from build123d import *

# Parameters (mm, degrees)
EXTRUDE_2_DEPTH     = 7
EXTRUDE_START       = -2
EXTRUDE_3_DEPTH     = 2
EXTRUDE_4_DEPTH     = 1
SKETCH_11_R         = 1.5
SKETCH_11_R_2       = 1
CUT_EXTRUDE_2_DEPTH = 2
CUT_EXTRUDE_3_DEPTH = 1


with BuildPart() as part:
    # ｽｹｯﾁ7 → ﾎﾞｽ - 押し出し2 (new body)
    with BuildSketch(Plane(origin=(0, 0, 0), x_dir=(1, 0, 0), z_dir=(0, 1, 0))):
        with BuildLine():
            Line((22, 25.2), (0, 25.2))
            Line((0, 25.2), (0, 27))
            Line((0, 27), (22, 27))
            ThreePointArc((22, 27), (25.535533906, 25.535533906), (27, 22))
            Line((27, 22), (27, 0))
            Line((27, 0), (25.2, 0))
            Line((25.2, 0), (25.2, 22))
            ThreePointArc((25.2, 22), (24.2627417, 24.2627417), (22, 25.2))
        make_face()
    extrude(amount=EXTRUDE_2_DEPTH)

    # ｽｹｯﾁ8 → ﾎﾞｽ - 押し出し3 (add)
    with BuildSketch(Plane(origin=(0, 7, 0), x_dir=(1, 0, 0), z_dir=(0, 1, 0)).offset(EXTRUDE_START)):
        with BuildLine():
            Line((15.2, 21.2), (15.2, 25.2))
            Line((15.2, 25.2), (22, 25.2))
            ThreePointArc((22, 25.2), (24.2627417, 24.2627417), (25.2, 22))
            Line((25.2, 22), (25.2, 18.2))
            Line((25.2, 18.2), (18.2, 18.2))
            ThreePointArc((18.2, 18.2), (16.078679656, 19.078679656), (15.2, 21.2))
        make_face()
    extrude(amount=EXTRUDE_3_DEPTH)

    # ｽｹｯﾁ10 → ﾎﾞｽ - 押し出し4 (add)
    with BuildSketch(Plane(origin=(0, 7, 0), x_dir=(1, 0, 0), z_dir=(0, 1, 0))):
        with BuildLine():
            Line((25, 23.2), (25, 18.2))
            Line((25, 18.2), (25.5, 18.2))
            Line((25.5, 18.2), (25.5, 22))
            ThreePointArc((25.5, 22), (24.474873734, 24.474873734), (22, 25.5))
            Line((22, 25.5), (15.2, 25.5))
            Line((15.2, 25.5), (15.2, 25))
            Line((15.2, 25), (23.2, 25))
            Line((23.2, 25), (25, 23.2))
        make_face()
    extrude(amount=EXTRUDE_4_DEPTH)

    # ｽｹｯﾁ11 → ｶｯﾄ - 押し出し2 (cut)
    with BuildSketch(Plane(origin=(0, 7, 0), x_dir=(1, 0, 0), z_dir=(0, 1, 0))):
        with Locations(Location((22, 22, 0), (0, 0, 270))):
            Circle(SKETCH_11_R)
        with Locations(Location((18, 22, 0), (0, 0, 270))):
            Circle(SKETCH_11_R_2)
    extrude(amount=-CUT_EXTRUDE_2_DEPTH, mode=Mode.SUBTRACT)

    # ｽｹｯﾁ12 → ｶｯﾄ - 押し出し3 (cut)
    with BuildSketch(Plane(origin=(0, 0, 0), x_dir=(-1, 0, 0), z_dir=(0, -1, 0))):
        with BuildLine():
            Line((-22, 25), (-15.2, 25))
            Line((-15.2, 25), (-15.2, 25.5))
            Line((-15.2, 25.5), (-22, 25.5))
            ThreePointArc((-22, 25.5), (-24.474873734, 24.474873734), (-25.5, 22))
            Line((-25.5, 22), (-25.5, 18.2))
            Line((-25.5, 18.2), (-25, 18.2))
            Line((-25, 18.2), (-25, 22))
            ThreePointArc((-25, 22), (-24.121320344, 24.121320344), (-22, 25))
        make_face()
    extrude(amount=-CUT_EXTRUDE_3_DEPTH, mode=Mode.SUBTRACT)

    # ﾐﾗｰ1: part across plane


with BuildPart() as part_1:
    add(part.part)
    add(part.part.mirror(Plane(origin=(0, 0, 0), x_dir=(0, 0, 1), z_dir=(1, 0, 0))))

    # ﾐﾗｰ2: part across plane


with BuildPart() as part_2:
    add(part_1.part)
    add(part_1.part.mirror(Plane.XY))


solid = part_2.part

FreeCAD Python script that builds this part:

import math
import FreeCAD as App
import Part
import Sketcher
from FreeCAD import Vector
Q = App.Units.Quantity

doc = App.newDocument("Part")
params = doc.addObject("Spreadsheet::Sheet", "Params")
for row, (alias, value) in enumerate([
    ("sketch1_radius", "5 mm"),
    ("sketch1_radius2", "3.2 mm"),
    ("sketch1_width", "22 mm"),
    ("pad1_length", "7 mm"),
    ("sketch2_radius", "3 mm"),
    ("sketch2_radius2", "3.2 mm"),
    ("sketch2_width", "7 mm"),
    ("sketch2_height", "4 mm"),
    ("pad2_length", "2 mm"),
    ("sketch3_radius", "3.5 mm"),
    ("sketch3_width", "8 mm"),
    ("sketch3_height", "5 mm"),
    ("sketch3_width2", "0.5 mm"),
    ("sketch3_width3", "6.8 mm"),
    ("pad3_length", "1 mm"),
    ("sketch4_diameter", "3 mm"),
    ("sketch4_diameter2", "2 mm"),
    ("pocket1_length", "2 mm"),
    ("sketch5_radius", "3 mm"),
    ("sketch5_radius2", "3.5 mm"),
    ("sketch5_width", "6.8 mm"),
    ("sketch5_height", "3.8 mm"),
    ("pocket2_length", "1 mm"),
], start=1):
    params.set(f"A{row}", alias)
    params.set(f"B{row}", "=" + value)
    params.setAlias(f"B{row}", alias)

body = doc.addObject("PartDesign::Body", "Body")

# Sketch on XZ plane
sketch1 = body.newObject("Sketcher::SketchObject", "Sketch")
sketch1.AttachmentSupport = (doc.getObject("XZ_Plane"), [""])
sketch1.MapMode = "FlatFace"
sketch1.addGeometry([
    Part.LineSegment(Vector(0, -25.2, 0), Vector(22, -25.2, 0)),  # 0
    Part.ArcOfCircle(Part.Circle(Vector(22, -22, 0), Vector(0, 0, 1), 3.2), math.radians(-90), math.radians(0)),  # 1
    Part.LineSegment(Vector(25.2, -22, 0), Vector(25.2, 0, 0)),  # 2
    Part.LineSegment(Vector(25.2, 0, 0), Vector(27, 0, 0)),  # 3
    Part.LineSegment(Vector(27, 0, 0), Vector(27, -22, 0)),  # 4
    Part.ArcOfCircle(Part.Circle(Vector(22, -22, 0), Vector(0, 0, 1), 5), math.radians(-90), math.radians(0)),  # 5
    Part.LineSegment(Vector(22, -27, 0), Vector(0, -27, 0)),  # 6
    Part.LineSegment(Vector(0, -27, 0), Vector(0, -25.2, 0)),  # 7
], False)
sketch1.addConstraint([
    Sketcher.Constraint("Tangent", 0, 2, 1, 1),
    Sketcher.Constraint("Tangent", 1, 2, 2, 1),
    Sketcher.Constraint("Coincident", 2, 2, 3, 1),
    Sketcher.Constraint("Coincident", 3, 2, 4, 1),
    Sketcher.Constraint("Tangent", 4, 2, 5, 2),
    Sketcher.Constraint("Tangent", 5, 1, 6, 1),
    Sketcher.Constraint("Coincident", 6, 2, 7, 1),
    Sketcher.Constraint("Coincident", 7, 2, 0, 1),
    Sketcher.Constraint("Horizontal", 0),
    Sketcher.Constraint("Vertical", 2),
    Sketcher.Constraint("Horizontal", 3),
    Sketcher.Constraint("Vertical", 4),
    Sketcher.Constraint("Horizontal", 6),
    Sketcher.Constraint("Vertical", 7),
    Sketcher.Constraint("Coincident", 5, 3, 1, 3),
    Sketcher.Constraint("PointOnObject", 2, 2, -1),
    Sketcher.Constraint("PointOnObject", 6, 2, -2),
    Sketcher.Constraint("Equal", 6, 2),
    Sketcher.Constraint("Radius", 5, 5.0),
    Sketcher.Constraint("Radius", 1, 3.2),
    Sketcher.Constraint("DistanceX", 0, 1, 0, 2, 22.0),
])
sketch1.setExpression("Constraints[18]", "Params.sketch1_radius")
sketch1.setExpression("Constraints[19]", "Params.sketch1_radius2")
sketch1.setExpression("Constraints[20]", "Params.sketch1_width")
pad1 = body.newObject("PartDesign::Pad", "Pad")
pad1.Profile = sketch1
pad1.setExpression("Length", "Params.pad1_length")
pad1.Reversed = True

# Sketch on XZ plane
sketch2 = body.newObject("Sketcher::SketchObject", "Sketch001")
sketch2.AttachmentSupport = (doc.getObject("XZ_Plane"), [""])
sketch2.MapMode = "FlatFace"
sketch2.AttachmentOffset = App.Placement(Vector(0, 0, -5), App.Rotation())
sketch2.addGeometry([
    Part.LineSegment(Vector(15.2, -25.2, 0), Vector(15.2, -21.2, 0)),  # 0
    Part.ArcOfCircle(Part.Circle(Vector(18.2, -21.2, 0), Vector(0, 0, 1), 3), math.radians(90), math.radians(180)),  # 1
    Part.LineSegment(Vector(18.2, -18.2, 0), Vector(25.2, -18.2, 0)),  # 2
    Part.LineSegment(Vector(25.2, -18.2, 0), Vector(25.2, -22, 0)),  # 3
    Part.ArcOfCircle(Part.Circle(Vector(22, -22, 0), Vector(0, 0, 1), 3.2), math.radians(-90), math.radians(0)),  # 4
    Part.LineSegment(Vector(22, -25.2, 0), Vector(15.2, -25.2, 0)),  # 5
], False)
sketch2.addConstraint([
    Sketcher.Constraint("Tangent", 0, 2, 1, 2),
    Sketcher.Constraint("Tangent", 1, 1, 2, 1),
    Sketcher.Constraint("Coincident", 2, 2, 3, 1),
    Sketcher.Constraint("Tangent", 3, 2, 4, 2),
    Sketcher.Constraint("Tangent", 4, 1, 5, 1),
    Sketcher.Constraint("Coincident", 5, 2, 0, 1),
    Sketcher.Constraint("Vertical", 0),
    Sketcher.Constraint("Horizontal", 2),
    Sketcher.Constraint("Vertical", 3),
    Sketcher.Constraint("Horizontal", 5),
    Sketcher.Constraint("Radius", 1, 3.0),
    Sketcher.Constraint("Radius", 4, 3.2),
    Sketcher.Constraint("DistanceX", 2, 1, 2, 2, 7.0),
    Sketcher.Constraint("DistanceY", 0, 1, 0, 2, 4.0),
    Sketcher.Constraint("DistanceX", -1, 1, 4, 3, 22.0),
    Sketcher.Constraint("DistanceY", 4, 3, -1, 1, 22.0),
])
sketch2.setExpression("Constraints[10]", "Params.sketch2_radius")
sketch2.setExpression("Constraints[11]", "Params.sketch2_radius2")
sketch2.setExpression("Constraints[12]", "Params.sketch2_width")
sketch2.setExpression("Constraints[13]", "Params.sketch2_height")
pad2 = body.newObject("PartDesign::Pad", "Pad001")
pad2.Profile = sketch2
pad2.setExpression("Length", "Params.pad2_length")
pad2.Reversed = True

# Sketch on XZ plane
sketch3 = body.newObject("Sketcher::SketchObject", "Sketch002")
sketch3.AttachmentSupport = (doc.getObject("XZ_Plane"), [""])
sketch3.MapMode = "FlatFace"
sketch3.AttachmentOffset = App.Placement(Vector(0, 0, -7), App.Rotation())
sketch3.addGeometry([
    Part.LineSegment(Vector(25, -23.2, 0), Vector(25, -18.2, 0)),  # 0
    Part.LineSegment(Vector(25, -18.2, 0), Vector(25.5, -18.2, 0)),  # 1
    Part.LineSegment(Vector(25.5, -18.2, 0), Vector(25.5, -22, 0)),  # 2
    Part.ArcOfCircle(Part.Circle(Vector(22, -22, 0), Vector(0, 0, 1), 3.5), math.radians(-90), math.radians(0)),  # 3
    Part.LineSegment(Vector(22, -25.5, 0), Vector(15.2, -25.5, 0)),  # 4
    Part.LineSegment(Vector(15.2, -25.5, 0), Vector(15.2, -25, 0)),  # 5
    Part.LineSegment(Vector(15.2, -25, 0), Vector(23.2, -25, 0)),  # 6
    Part.LineSegment(Vector(23.2, -25, 0), Vector(25, -23.2, 0)),  # 7
], False)
sketch3.addConstraint([
    Sketcher.Constraint("Coincident", 0, 2, 1, 1),
    Sketcher.Constraint("Coincident", 1, 2, 2, 1),
    Sketcher.Constraint("Tangent", 2, 2, 3, 2),
    Sketcher.Constraint("Tangent", 3, 1, 4, 1),
    Sketcher.Constraint("Coincident", 4, 2, 5, 1),
    Sketcher.Constraint("Coincident", 5, 2, 6, 1),
    Sketcher.Constraint("Coincident", 6, 2, 7, 1),
    Sketcher.Constraint("Coincident", 7, 2, 0, 1),
    Sketcher.Constraint("Vertical", 0),
    Sketcher.Constraint("Horizontal", 1),
    Sketcher.Constraint("Vertical", 2),
    Sketcher.Constraint("Horizontal", 4),
    Sketcher.Constraint("Vertical", 5),
    Sketcher.Constraint("Horizontal", 6),
    Sketcher.Constraint("Equal", 1, 5),
    Sketcher.Constraint("Radius", 3, 3.5),
    Sketcher.Constraint("DistanceX", 6, 1, 6, 2, 8.0),
    Sketcher.Constraint("DistanceY", 0, 1, 0, 2, 5.0),
    Sketcher.Constraint("Angle", 7, Q("45 deg")),
    Sketcher.Constraint("DistanceX", 1, 1, 1, 2, 0.5),
    Sketcher.Constraint("DistanceX", 4, 2, 4, 1, 6.8),
    Sketcher.Constraint("DistanceX", -1, 1, 3, 3, 22.0),
    Sketcher.Constraint("DistanceY", 3, 3, -1, 1, 22.0),
])
sketch3.setExpression("Constraints[15]", "Params.sketch3_radius")
sketch3.setExpression("Constraints[16]", "Params.sketch3_width")
sketch3.setExpression("Constraints[17]", "Params.sketch3_height")
sketch3.setExpression("Constraints[19]", "Params.sketch3_width2")
sketch3.setExpression("Constraints[20]", "Params.sketch3_width3")
pad3 = body.newObject("PartDesign::Pad", "Pad002")
pad3.Profile = sketch3
pad3.setExpression("Length", "Params.pad3_length")
pad3.Reversed = True

# Sketch on XZ plane
sketch4 = body.newObject("Sketcher::SketchObject", "Sketch003")
sketch4.AttachmentSupport = (doc.getObject("XZ_Plane"), [""])
sketch4.MapMode = "FlatFace"
sketch4.AttachmentOffset = App.Placement(Vector(0, 0, -7), App.Rotation())
sketch4.addGeometry([
    Part.Circle(Vector(22, -22, 0), Vector(0, 0, 1), 1.5),
    Part.Circle(Vector(18, -22, 0), Vector(0, 0, 1), 1),
], False)
sketch4.addConstraint([
    Sketcher.Constraint("Horizontal", 0, 3, 1, 3),
    Sketcher.Constraint("Diameter", 0, 3.0),
    Sketcher.Constraint("Diameter", 1, 2.0),
    Sketcher.Constraint("DistanceX", -1, 1, 0, 3, 22.0),
    Sketcher.Constraint("DistanceY", 0, 3, -1, 1, 22.0),
    Sketcher.Constraint("DistanceX", -1, 1, 1, 3, 18.0),
])
sketch4.setExpression("Constraints[1]", "Params.sketch4_diameter")
sketch4.setExpression("Constraints[2]", "Params.sketch4_diameter2")
pocket1 = body.newObject("PartDesign::Pocket", "Pocket")
pocket1.Profile = sketch4
pocket1.setExpression("Length", "Params.pocket1_length")
pocket1.Reversed = True

# Sketch on XZ plane
sketch5 = body.newObject("Sketcher::SketchObject", "Sketch004")
sketch5.AttachmentSupport = (doc.getObject("XZ_Plane"), [""])
sketch5.MapMode = "FlatFace"
sketch5.addGeometry([
    Part.LineSegment(Vector(22, -25, 0), Vector(15.2, -25, 0)),  # 0
    Part.LineSegment(Vector(15.2, -25, 0), Vector(15.2, -25.5, 0)),  # 1
    Part.LineSegment(Vector(15.2, -25.5, 0), Vector(22, -25.5, 0)),  # 2
    Part.ArcOfCircle(Part.Circle(Vector(22, -22, 0), Vector(0, 0, 1), 3.5), math.radians(-90), math.radians(0)),  # 3
    Part.LineSegment(Vector(25.5, -22, 0), Vector(25.5, -18.2, 0)),  # 4
    Part.LineSegment(Vector(25.5, -18.2, 0), Vector(25, -18.2, 0)),  # 5
    Part.LineSegment(Vector(25, -18.2, 0), Vector(25, -22, 0)),  # 6
    Part.ArcOfCircle(Part.Circle(Vector(22, -22, 0), Vector(0, 0, 1), 3), math.radians(-90), math.radians(0)),  # 7
], False)
sketch5.addConstraint([
    Sketcher.Constraint("Coincident", 0, 2, 1, 1),
    Sketcher.Constraint("Coincident", 1, 2, 2, 1),
    Sketcher.Constraint("Tangent", 2, 2, 3, 1),
    Sketcher.Constraint("Tangent", 3, 2, 4, 1),
    Sketcher.Constraint("Coincident", 4, 2, 5, 1),
    Sketcher.Constraint("Coincident", 5, 2, 6, 1),
    Sketcher.Constraint("Tangent", 6, 2, 7, 2),
    Sketcher.Constraint("Tangent", 7, 1, 0, 1),
    Sketcher.Constraint("Horizontal", 0),
    Sketcher.Constraint("Vertical", 1),
    Sketcher.Constraint("Horizontal", 2),
    Sketcher.Constraint("Vertical", 4),
    Sketcher.Constraint("Horizontal", 5),
    Sketcher.Constraint("Vertical", 6),
    Sketcher.Constraint("Coincident", 7, 3, 3, 3),
    Sketcher.Constraint("Radius", 7, 3.0),
    Sketcher.Constraint("Radius", 3, 3.5),
    Sketcher.Constraint("DistanceX", 0, 2, 0, 1, 6.8),
    Sketcher.Constraint("DistanceY", 4, 1, 4, 2, 3.8),
    Sketcher.Constraint("DistanceX", -1, 1, 3, 3, 22.0),
    Sketcher.Constraint("DistanceY", 3, 3, -1, 1, 22.0),
])
sketch5.setExpression("Constraints[15]", "Params.sketch5_radius")
sketch5.setExpression("Constraints[16]", "Params.sketch5_radius2")
sketch5.setExpression("Constraints[17]", "Params.sketch5_width")
sketch5.setExpression("Constraints[18]", "Params.sketch5_height")
pocket2 = body.newObject("PartDesign::Pocket", "Pocket001")
pocket2.Profile = sketch5
pocket2.setExpression("Length", "Params.pocket2_length")
body2 = doc.addObject("PartDesign::Body", "Body001")
doc.recompute()

body2.BaseFeature = body
doc.recompute()

mirroring = doc.addObject("Part::Mirroring", "Mirroring")
mirroring.Source = body
mirroring.Base = Vector(0, 0, 0)
mirroring.Normal = Vector(1, 0, 0)
body3 = doc.addObject("PartDesign::Body", "Body002")
body3.BaseFeature = mirroring
boolean = body2.newObject("PartDesign::Boolean", "Boolean")
boolean.Type = "Fuse"
boolean.addObjects([body3])
doc.recompute()
body4 = doc.addObject("PartDesign::Body", "Body003")
doc.recompute()

body4.BaseFeature = body2
doc.recompute()

mirroring2 = doc.addObject("Part::Mirroring", "Mirroring001")
mirroring2.Source = body2
mirroring2.Base = Vector(0, 0, 0)
mirroring2.Normal = Vector(0, 0, 1)
body5 = doc.addObject("PartDesign::Body", "Body004")
body5.BaseFeature = mirroring2
boolean2 = body4.newObject("PartDesign::Boolean", "Boolean001")
boolean2.Type = "Fuse"
boolean2.addObjects([body5])
doc.recompute()
mirroring.Visibility = False
mirroring2.Visibility = False

doc.recompute()
